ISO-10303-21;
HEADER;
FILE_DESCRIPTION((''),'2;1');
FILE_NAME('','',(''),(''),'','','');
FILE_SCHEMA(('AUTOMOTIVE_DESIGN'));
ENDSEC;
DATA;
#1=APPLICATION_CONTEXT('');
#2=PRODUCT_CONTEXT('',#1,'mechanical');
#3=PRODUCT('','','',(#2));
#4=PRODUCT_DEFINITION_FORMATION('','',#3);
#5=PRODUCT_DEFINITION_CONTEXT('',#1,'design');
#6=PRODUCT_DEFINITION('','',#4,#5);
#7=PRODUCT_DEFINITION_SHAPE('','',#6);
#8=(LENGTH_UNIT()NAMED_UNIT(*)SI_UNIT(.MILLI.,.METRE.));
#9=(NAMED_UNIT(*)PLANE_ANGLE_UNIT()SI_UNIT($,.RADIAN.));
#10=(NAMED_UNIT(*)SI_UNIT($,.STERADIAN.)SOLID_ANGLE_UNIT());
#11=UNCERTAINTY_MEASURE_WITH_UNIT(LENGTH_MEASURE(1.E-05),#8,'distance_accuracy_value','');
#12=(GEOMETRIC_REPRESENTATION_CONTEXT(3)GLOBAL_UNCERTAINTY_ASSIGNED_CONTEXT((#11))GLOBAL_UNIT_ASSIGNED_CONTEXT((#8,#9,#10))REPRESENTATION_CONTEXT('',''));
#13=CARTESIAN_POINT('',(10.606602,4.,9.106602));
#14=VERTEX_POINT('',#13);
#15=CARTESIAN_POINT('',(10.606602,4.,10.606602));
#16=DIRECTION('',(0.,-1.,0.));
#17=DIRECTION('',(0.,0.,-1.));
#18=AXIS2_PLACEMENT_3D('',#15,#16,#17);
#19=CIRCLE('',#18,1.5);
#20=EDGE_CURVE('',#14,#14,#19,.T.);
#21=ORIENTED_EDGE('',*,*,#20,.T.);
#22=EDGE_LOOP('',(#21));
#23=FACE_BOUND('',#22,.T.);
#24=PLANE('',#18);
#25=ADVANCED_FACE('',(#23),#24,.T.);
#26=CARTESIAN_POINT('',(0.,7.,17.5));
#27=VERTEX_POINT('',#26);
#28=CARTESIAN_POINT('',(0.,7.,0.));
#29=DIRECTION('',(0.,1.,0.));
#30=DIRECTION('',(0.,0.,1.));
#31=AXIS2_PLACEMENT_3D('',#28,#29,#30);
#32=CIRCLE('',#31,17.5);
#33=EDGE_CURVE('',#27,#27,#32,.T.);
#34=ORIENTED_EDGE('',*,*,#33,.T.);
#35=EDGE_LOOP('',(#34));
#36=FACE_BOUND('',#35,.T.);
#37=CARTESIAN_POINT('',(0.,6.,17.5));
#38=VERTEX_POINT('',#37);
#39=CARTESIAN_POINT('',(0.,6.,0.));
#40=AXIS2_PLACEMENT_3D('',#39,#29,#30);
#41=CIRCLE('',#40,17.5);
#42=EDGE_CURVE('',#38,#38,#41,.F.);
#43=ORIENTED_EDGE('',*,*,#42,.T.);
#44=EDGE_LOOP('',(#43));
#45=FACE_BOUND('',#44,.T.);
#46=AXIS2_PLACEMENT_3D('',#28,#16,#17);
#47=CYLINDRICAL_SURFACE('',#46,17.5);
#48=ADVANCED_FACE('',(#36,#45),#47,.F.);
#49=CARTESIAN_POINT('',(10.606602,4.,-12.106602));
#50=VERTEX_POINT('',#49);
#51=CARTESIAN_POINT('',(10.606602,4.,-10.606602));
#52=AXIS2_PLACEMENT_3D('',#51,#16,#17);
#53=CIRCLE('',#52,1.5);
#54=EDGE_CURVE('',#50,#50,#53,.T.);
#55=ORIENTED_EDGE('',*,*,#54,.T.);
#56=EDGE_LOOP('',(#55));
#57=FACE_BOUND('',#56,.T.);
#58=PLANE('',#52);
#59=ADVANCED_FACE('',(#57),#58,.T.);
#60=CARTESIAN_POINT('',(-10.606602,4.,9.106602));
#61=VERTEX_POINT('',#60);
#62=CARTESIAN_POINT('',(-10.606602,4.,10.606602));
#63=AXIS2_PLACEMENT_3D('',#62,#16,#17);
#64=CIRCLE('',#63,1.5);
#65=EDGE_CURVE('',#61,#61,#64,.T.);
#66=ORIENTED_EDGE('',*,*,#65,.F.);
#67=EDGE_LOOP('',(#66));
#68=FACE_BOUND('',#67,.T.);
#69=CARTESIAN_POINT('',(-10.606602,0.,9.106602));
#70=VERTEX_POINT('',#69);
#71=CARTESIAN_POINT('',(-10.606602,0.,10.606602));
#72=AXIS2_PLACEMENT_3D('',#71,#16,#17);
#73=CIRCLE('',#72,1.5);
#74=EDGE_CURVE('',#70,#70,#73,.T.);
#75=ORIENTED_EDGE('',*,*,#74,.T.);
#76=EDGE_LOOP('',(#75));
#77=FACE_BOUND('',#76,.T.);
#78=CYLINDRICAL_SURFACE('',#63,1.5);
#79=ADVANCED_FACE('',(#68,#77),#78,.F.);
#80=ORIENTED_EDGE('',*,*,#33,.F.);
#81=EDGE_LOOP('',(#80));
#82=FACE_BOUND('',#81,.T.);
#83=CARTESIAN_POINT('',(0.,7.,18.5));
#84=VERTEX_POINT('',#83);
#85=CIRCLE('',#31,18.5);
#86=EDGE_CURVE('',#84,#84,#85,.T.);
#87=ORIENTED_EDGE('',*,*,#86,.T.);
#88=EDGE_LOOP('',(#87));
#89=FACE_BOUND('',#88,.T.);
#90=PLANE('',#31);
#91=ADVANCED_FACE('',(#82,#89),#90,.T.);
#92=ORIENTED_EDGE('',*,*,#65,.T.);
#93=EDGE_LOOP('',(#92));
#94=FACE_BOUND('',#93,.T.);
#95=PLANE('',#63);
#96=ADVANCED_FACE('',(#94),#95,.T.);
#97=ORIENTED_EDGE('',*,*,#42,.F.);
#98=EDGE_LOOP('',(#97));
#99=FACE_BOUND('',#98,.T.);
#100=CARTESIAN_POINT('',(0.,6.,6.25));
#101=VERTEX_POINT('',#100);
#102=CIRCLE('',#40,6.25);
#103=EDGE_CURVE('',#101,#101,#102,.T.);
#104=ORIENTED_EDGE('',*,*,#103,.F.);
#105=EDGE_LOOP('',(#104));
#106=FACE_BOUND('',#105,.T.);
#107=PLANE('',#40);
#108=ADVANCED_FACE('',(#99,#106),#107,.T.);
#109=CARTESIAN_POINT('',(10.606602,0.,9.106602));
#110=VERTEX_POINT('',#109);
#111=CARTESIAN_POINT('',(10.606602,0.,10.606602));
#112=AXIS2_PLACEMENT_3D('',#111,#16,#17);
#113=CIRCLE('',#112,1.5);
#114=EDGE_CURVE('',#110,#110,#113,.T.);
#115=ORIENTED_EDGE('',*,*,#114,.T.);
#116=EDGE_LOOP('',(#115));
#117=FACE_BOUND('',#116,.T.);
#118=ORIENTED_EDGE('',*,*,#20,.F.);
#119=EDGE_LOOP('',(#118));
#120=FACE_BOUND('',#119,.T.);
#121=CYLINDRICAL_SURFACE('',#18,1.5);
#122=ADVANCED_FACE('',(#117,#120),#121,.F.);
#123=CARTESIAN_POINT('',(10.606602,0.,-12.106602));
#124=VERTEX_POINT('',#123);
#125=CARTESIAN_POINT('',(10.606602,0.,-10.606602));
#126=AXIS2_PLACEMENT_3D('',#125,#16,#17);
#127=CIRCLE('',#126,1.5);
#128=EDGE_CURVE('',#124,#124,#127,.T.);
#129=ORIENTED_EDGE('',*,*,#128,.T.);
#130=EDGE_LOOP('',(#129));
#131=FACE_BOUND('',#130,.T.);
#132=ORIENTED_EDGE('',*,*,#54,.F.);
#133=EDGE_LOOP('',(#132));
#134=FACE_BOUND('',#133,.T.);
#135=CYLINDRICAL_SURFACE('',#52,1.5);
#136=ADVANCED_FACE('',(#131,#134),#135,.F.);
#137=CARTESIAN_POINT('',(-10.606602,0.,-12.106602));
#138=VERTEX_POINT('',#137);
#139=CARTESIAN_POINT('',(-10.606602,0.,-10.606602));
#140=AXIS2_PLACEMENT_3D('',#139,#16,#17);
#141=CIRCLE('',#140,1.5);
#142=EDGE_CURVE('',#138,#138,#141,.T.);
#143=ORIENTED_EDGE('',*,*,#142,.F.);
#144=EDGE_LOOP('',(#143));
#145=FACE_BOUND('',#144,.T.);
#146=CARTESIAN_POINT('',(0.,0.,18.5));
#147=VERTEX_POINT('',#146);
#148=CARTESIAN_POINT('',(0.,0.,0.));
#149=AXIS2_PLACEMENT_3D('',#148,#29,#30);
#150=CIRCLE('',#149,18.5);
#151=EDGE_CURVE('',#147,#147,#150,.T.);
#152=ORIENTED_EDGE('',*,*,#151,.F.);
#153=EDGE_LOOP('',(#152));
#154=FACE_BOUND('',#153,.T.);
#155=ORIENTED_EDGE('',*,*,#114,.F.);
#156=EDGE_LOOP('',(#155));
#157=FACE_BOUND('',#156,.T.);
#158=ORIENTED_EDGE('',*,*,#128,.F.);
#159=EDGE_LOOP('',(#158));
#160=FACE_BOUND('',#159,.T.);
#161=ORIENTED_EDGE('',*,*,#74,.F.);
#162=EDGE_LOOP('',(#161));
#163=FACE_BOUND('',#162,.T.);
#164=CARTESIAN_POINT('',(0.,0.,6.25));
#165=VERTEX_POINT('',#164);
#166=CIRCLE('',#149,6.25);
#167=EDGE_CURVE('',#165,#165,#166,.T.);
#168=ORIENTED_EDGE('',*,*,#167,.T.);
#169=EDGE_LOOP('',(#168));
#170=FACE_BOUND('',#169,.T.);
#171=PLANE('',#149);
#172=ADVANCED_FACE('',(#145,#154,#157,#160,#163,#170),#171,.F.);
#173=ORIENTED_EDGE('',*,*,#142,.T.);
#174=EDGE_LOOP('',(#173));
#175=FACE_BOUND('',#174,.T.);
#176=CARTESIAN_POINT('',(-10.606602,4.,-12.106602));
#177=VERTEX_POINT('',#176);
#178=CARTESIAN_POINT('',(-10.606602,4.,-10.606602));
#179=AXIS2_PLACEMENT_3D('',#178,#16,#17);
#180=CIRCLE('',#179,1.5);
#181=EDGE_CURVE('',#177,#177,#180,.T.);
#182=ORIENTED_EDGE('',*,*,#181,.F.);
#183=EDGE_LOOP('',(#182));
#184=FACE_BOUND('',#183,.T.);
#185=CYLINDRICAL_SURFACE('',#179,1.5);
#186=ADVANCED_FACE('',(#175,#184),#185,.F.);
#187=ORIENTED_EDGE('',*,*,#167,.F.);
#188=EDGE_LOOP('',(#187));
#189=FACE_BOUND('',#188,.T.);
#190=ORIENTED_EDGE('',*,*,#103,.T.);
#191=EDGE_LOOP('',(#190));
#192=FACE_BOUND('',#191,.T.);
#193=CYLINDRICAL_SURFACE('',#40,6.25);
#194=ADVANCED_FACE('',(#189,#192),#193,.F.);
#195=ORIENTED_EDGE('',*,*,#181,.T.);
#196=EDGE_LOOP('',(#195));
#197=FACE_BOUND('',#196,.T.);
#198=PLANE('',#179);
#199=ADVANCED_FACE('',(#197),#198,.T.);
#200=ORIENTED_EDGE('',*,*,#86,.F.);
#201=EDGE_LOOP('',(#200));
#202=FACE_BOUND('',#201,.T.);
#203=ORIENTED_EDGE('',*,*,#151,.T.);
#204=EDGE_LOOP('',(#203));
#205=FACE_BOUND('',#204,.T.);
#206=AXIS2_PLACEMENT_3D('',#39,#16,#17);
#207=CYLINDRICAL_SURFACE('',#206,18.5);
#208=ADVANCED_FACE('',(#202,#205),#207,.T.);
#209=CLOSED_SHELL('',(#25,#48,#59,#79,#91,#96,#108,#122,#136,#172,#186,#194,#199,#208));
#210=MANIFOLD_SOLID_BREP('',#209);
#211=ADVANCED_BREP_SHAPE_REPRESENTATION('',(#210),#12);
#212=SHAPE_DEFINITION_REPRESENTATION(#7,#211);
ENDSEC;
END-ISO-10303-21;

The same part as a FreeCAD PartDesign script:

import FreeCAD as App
import Part
import Sketcher
from FreeCAD import Vector
Q = App.Units.Quantity

doc = App.newDocument("Part")
body = doc.addObject("PartDesign::Body", "Body")

sketch1 = body.newObject("Sketcher::SketchObject", "Sketch")
sketch1.AttachmentSupport = (doc.getObject("XZ_Plane"), [""])
sketch1.MapMode = "FlatFace"
sketch1.addGeometry(Part.Circle(Vector(0, 0, 0), Vector(0, 0, 1), 18), False)
sketch1.addConstraint([
    Sketcher.Constraint("Coincident", 0, 3, -1, 1),
    Sketcher.Constraint("Diameter", 0, Q("37 mm")),
])
pad1 = body.newObject("PartDesign::Pad", "Pad")
pad1.Profile = sketch1
pad1.Length = 6
pad1.Reversed = True

sketch2 = body.newObject("Sketcher::SketchObject", "Sketch001")
sketch2.AttachmentSupport = (doc.getObject("XZ_Plane"), [""])
sketch2.MapMode = "FlatFace"
sketch2.AttachmentOffset = App.Placement(Vector(0, 0, -6), App.Rotation())
sketch2.addGeometry([
    Part.Circle(Vector(0, 0, 0), Vector(0, 0, 1), 18),
    Part.Circle(Vector(0, 0, 0), Vector(0, 0, 1), 18),
], False)
sketch2.addConstraint([
    Sketcher.Constraint("Coincident", 0, 3, -1, 1),
    Sketcher.Constraint("Coincident", 1, 3, -1, 1),
    Sketcher.Constraint("Diameter", 0, Q("37 mm")),
    Sketcher.Constraint("Diameter", 1, Q("35 mm")),
])
pad2 = body.newObject("PartDesign::Pad", "Pad001")
pad2.Profile = sketch2
pad2.Length = 1
pad2.Reversed = True

sketch3 = body.newObject("Sketcher::SketchObject", "Sketch002")
sketch3.AttachmentSupport = (doc.getObject("XZ_Plane"), [""])
sketch3.MapMode = "FlatFace"
sketch3.AttachmentOffset = App.Placement(Vector(0, 0, -6), App.Rotation())
sketch3.addGeometry(Part.Circle(Vector(0, 0, 0), Vector(0, 0, 1), 6), False)
sketch3.addConstraint([
    Sketcher.Constraint("Coincident", 0, 3, -1, 1),
    Sketcher.Constraint("Diameter", 0, Q("12.5 mm")),
])
doc.recompute()
hole = body.newObject("PartDesign::Hole", "Hole")
hole.Profile = sketch3
hole.ThreadType = "None"
hole.Diameter = 12.5
hole.DepthType = "ThroughAll"
hole.Reversed = True

sketch4 = body.newObject("Sketcher::SketchObject", "Sketch003")
sketch4.AttachmentSupport = (doc.getObject("XZ_Plane"), [""])
sketch4.MapMode = "FlatFace"
sketch4.addGeometry([
    Part.Circle(Vector(-10.6, 10.6, 0), Vector(0, 0, 1), 1.5),
    Part.Circle(Vector(10.6, 10.6, 0), Vector(0, 0, 1), 1.5),
    Part.Circle(Vector(10.6, -10.6, 0), Vector(0, 0, 1), 1.5),
    Part.Circle(Vector(-10.6, -10.6, 0), Vector(0, 0, 1), 1.5),
], False)
sketch4.addConstraint([
    Sketcher.Constraint("Equal", 0, 1),
    Sketcher.Constraint("Equal", 1, 2),
    Sketcher.Constraint("Equal", 2, 3),
    Sketcher.Constraint("Symmetric", 0, 3, 2, 3, -1, 1),
    Sketcher.Constraint("Symmetric", 1, 3, 3, 3, -1, 1),
    Sketcher.Constraint("Symmetric", 0, 3, 1, 3, -2),
    Sketcher.Constraint("Diameter", 0, Q("3 mm")),
    Sketcher.Constraint("DistanceX", 0, 3, -1, 1, Q("10.606602 mm")),
    Sketcher.Constraint("DistanceY", -1, 1, 0, 3, Q("10.606602 mm")),
])
pocket1 = body.newObject("PartDesign::Pocket", "Pocket")
pocket1.Profile = sketch4
pocket1.Length = 4

doc.recompute()
